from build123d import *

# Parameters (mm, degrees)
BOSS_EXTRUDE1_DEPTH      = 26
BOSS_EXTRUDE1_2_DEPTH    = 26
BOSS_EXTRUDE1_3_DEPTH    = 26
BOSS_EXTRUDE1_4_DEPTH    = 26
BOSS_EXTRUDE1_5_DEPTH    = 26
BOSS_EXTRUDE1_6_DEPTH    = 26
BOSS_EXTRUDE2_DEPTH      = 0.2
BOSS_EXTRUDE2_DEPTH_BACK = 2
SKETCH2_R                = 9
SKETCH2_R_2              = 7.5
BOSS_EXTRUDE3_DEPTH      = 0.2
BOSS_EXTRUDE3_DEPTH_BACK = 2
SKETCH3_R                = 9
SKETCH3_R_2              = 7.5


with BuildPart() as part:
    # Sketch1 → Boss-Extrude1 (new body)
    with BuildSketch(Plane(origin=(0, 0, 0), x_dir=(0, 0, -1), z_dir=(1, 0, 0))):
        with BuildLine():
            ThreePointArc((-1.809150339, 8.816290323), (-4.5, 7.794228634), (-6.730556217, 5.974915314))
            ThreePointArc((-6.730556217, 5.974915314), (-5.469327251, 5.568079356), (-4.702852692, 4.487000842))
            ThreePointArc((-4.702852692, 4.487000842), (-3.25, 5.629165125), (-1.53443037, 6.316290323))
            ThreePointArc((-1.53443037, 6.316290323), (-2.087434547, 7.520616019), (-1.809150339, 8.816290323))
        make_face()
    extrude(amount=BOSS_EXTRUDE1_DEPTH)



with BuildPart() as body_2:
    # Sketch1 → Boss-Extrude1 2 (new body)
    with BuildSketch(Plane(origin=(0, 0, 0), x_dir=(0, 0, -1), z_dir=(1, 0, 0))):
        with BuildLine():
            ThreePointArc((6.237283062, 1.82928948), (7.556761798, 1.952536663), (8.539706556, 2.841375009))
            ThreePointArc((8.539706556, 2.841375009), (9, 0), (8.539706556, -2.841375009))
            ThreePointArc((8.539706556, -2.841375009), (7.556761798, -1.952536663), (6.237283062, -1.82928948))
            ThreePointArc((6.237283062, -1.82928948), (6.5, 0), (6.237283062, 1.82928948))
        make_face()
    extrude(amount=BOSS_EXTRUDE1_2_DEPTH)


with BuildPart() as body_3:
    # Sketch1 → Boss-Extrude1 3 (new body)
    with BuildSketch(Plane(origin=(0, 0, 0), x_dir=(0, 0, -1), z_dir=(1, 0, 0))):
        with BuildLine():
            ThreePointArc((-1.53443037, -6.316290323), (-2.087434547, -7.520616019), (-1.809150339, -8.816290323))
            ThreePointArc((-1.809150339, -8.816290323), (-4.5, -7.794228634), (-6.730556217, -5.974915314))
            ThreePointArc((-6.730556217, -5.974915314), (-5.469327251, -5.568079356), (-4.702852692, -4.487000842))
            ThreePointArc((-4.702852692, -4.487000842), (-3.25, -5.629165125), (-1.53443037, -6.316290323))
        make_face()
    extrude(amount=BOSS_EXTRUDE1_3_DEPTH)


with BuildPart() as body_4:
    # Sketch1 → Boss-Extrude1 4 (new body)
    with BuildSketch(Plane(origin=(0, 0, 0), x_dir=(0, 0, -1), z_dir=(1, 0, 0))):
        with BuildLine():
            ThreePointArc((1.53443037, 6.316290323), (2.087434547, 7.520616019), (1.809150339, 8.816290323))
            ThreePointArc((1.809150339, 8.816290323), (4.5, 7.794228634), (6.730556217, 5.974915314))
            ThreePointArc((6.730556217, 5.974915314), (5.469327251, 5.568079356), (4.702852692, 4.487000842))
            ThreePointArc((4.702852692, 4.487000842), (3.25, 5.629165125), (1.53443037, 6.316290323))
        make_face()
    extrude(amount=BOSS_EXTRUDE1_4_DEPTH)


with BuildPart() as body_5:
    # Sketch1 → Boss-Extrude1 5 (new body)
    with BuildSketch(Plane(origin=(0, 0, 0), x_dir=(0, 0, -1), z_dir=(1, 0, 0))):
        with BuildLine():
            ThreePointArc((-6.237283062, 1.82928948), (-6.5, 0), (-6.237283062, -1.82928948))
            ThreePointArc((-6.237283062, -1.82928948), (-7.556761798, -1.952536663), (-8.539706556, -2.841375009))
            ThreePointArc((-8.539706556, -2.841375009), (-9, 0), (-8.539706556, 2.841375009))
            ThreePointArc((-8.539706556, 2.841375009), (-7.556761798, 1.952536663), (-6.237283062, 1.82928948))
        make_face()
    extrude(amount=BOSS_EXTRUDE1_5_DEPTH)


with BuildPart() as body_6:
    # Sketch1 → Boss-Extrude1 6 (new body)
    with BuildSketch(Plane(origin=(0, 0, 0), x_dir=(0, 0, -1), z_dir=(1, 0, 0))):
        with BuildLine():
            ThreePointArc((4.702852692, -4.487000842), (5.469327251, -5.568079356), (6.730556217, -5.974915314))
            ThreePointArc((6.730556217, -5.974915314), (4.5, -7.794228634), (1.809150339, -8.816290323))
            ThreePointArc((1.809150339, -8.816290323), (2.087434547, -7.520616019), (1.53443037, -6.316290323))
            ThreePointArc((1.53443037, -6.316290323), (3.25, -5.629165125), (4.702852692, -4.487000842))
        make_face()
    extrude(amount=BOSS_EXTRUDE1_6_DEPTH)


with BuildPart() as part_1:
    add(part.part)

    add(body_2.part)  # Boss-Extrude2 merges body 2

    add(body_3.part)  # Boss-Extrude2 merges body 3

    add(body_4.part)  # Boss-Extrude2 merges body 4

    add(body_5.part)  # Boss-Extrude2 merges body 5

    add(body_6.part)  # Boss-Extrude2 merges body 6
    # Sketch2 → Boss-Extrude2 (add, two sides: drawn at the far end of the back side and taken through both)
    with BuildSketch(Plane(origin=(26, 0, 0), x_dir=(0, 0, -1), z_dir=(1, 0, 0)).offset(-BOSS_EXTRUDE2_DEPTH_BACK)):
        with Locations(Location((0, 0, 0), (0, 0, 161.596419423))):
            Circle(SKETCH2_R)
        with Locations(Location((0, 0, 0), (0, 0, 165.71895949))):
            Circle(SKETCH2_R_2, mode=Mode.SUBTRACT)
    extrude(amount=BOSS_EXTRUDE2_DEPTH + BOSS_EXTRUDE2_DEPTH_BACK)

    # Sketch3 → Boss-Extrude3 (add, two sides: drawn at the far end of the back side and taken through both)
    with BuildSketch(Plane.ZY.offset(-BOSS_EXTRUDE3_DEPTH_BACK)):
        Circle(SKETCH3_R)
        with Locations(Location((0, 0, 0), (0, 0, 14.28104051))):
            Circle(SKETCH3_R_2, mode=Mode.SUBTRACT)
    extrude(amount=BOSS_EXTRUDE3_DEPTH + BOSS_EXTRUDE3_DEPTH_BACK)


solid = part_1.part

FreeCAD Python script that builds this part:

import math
import FreeCAD as App
import Part
import Sketcher
from FreeCAD import Vector

doc = App.newDocument("Part")
body = doc.addObject("PartDesign::Body", "Body")

# Sketch on YZ plane
sketch1 = doc.addObject("Sketcher::SketchObject", "Sketch")
body.addObject(sketch1)
sketch1.AttachmentSupport = (doc.YZ_Plane, [""])
sketch1.MapMode = "FlatFace"
sketch1.addGeometry([
    Part.ArcOfCircle(Part.Circle(Vector(0, 0, 0), Vector(0, 0, 1), 9), math.radians(11.596419), math.radians(48.403581)),
    Part.ArcOfCircle(Part.Circle(Vector(3.875, 6.711697, 0), Vector(0, 0, 1), 2.1), math.radians(-73.056474), math.radians(0.514559)),
    Part.ArcOfCircle(Part.Circle(Vector(0, 0, 0), Vector(0, 0, 1), 6.5), math.radians(13.654481), math.radians(46.345519)),
    Part.ArcOfCircle(Part.Circle(Vector(7.75, 0, 0), Vector(0, 0, 1), 2.1), math.radians(59.485441), math.radians(133.056474)),
], False)
sketch1.addConstraint([
    Sketcher.Constraint("Coincident", 0, 2, 1, 2),
    Sketcher.Constraint("Coincident", 1, 1, 2, 2),
    Sketcher.Constraint("Coincident", 2, 1, 3, 2),
    Sketcher.Constraint("Coincident", 3, 1, 0, 1),
    Sketcher.Constraint("Coincident", 0, 3, -1, 1),
    Sketcher.Constraint("Coincident", 2, 3, -1, 1),
    Sketcher.Constraint("Equal", 1, 3),
    Sketcher.Constraint("PointOnObject", 3, 3, -1),
    Sketcher.Constraint("Radius", 0, 9.0),
    Sketcher.Constraint("Radius", 1, 2.1),
    Sketcher.Constraint("Radius", 2, 6.5),
    Sketcher.Constraint("DistanceX", 2, 1, 3, 1, 2.5),
    Sketcher.Constraint("DistanceX", -1, 1, 1, 3, 3.875),
    Sketcher.Constraint("DistanceX", -1, 1, 1, 1, 4.487001),
])
pad1 = doc.addObject("PartDesign::Pad", "Pad")
body.addObject(pad1)
pad1.Profile = sketch1
pad1.Length = 26
body2 = doc.addObject("PartDesign::Body", "Body001")

# Sketch on YZ plane
sketch2 = doc.addObject("Sketcher::SketchObject", "Sketch001")
body2.addObject(sketch2)
sketch2.AttachmentSupport = (doc.getObject("YZ_Plane001"), [""])
sketch2.MapMode = "FlatFace"
sketch2.addGeometry([
    Part.ArcOfCircle(Part.Circle(Vector(3.875, -6.711697, 0), Vector(0, 0, 1), 2.1), math.radians(166.943526), math.radians(240.514559)),
    Part.ArcOfCircle(Part.Circle(Vector(0, 0, 0), Vector(0, 0, 1), 6.5), math.radians(-106.345519), math.radians(-73.654481)),
    Part.ArcOfCircle(Part.Circle(Vector(-3.875, -6.711697, 0), Vector(0, 0, 1), 2.1), math.radians(-60.514559), math.radians(13.056474)),
    Part.ArcOfCircle(Part.Circle(Vector(0, 0, 0), Vector(0, 0, 1), 9), math.radians(-108.403581), math.radians(-71.596419)),
], False)
sketch2.addConstraint([
    Sketcher.Constraint("Coincident", 0, 1, 1, 2),
    Sketcher.Constraint("Coincident", 1, 1, 2, 2),
    Sketcher.Constraint("Coincident", 2, 1, 3, 1),
    Sketcher.Constraint("Coincident", 3, 2, 0, 2),
    Sketcher.Constraint("Coincident", 1, 3, -1, 1),
    Sketcher.Constraint("Coincident", 3, 3, -1, 1),
    Sketcher.Constraint("Equal", 0, 2),
    Sketcher.Constraint("Symmetric", 0, 3, 2, 3, -2),
    Sketcher.Constraint("Radius", 3, 9.0),
    Sketcher.Constraint("Radius", 0, 2.1),
    Sketcher.Constraint("Radius", 1, 6.5),
    Sketcher.Constraint("DistanceX", 2, 3, 0, 3, 7.75),
    Sketcher.Constraint("DistanceX", -1, 1, 0, 1, 1.829289),
])
pad2 = doc.addObject("PartDesign::Pad", "Pad001")
body2.addObject(pad2)
pad2.Profile = sketch2
pad2.Length = 26
body3 = doc.addObject("PartDesign::Body", "Body002")

# Sketch on YZ plane
sketch3 = doc.addObject("Sketcher::SketchObject", "Sketch002")
body3.addObject(sketch3)
sketch3.AttachmentSupport = (doc.getObject("YZ_Plane002"), [""])
sketch3.MapMode = "FlatFace"
sketch3.addGeometry([
    Part.ArcOfCircle(Part.Circle(Vector(-7.75, 0, 0), Vector(0, 0, 1), 2.1), math.radians(46.943526), math.radians(120.514559)),
    Part.ArcOfCircle(Part.Circle(Vector(0, 0, 0), Vector(0, 0, 1), 6.5), math.radians(133.654481), math.radians(166.345519)),
    Part.ArcOfCircle(Part.Circle(Vector(-3.875, 6.711697, 0), Vector(0, 0, 1), 2.1), math.radians(179.485441), math.radians(253.056474)),
    Part.ArcOfCircle(Part.Circle(Vector(0, 0, 0), Vector(0, 0, 1), 9), math.radians(131.596419), math.radians(168.403581)),
], False)
sketch3.addConstraint([
    Sketcher.Constraint("Coincident", 0, 1, 1, 2),
    Sketcher.Constraint("Coincident", 1, 1, 2, 2),
    Sketcher.Constraint("Coincident", 2, 1, 3, 1),
    Sketcher.Constraint("Coincident", 3, 2, 0, 2),
    Sketcher.Constraint("Coincident", 1, 3, -1, 1),
    Sketcher.Constraint("Coincident", 3, 3, -1, 1),
    Sketcher.Constraint("Equal", 0, 2),
    Sketcher.Constraint("PointOnObject", 0, 3, -1),
    Sketcher.Constraint("Radius", 3, 9.0),
    Sketcher.Constraint("Radius", 0, 2.1),
    Sketcher.Constraint("Radius", 1, 6.5),
    Sketcher.Constraint("DistanceX", 3, 2, 0, 1, 2.5),
    Sketcher.Constraint("DistanceX", 2, 3, -1, 1, 3.875),
    Sketcher.Constraint("DistanceX", 1, 1, -1, 1, 4.487001),
])
pad3 = doc.addObject("PartDesign::Pad", "Pad002")
body3.addObject(pad3)
pad3.Profile = sketch3
pad3.Length = 26
body4 = doc.addObject("PartDesign::Body", "Body003")

# Sketch on YZ plane
sketch4 = doc.addObject("Sketcher::SketchObject", "Sketch003")
body4.addObject(sketch4)
sketch4.AttachmentSupport = (doc.getObject("YZ_Plane003"), [""])
sketch4.MapMode = "FlatFace"
sketch4.addGeometry([
    Part.ArcOfCircle(Part.Circle(Vector(7.75, 0, 0), Vector(0, 0, 1), 2.1), math.radians(-133.056474), math.radians(-59.485441)),
    Part.ArcOfCircle(Part.Circle(Vector(0, 0, 0), Vector(0, 0, 1), 6.5), math.radians(-46.345519), math.radians(-13.654481)),
    Part.ArcOfCircle(Part.Circle(Vector(3.875, -6.711697, 0), Vector(0, 0, 1), 2.1), math.radians(-0.514559), math.radians(73.056474)),
    Part.ArcOfCircle(Part.Circle(Vector(0, 0, 0), Vector(0, 0, 1), 9), math.radians(-48.403581), math.radians(-11.596419)),
], False)
sketch4.addConstraint([
    Sketcher.Constraint("Coincident", 0, 1, 1, 2),
    Sketcher.Constraint("Coincident", 1, 1, 2, 2),
    Sketcher.Constraint("Coincident", 2, 1, 3, 1),
    Sketcher.Constraint("Coincident", 3, 2, 0, 2),
    Sketcher.Constraint("Coincident", 1, 3, -1, 1),
    Sketcher.Constraint("Coincident", 3, 3, -1, 1),
    Sketcher.Constraint("Equal", 0, 2),
    Sketcher.Constraint("PointOnObject", 0, 3, -1),
    Sketcher.Constraint("Radius", 3, 9.0),
    Sketcher.Constraint("Radius", 0, 2.1),
    Sketcher.Constraint("Radius", 1, 6.5),
    Sketcher.Constraint("DistanceX", 0, 1, 3, 2, 2.5),
    Sketcher.Constraint("DistanceX", -1, 1, 2, 3, 3.875),
    Sketcher.Constraint("DistanceX", -1, 1, 1, 1, 4.487001),
])
pad4 = doc.addObject("PartDesign::Pad", "Pad003")
body4.addObject(pad4)
pad4.Profile = sketch4
pad4.Length = 26
body5 = doc.addObject("PartDesign::Body", "Body004")

# Sketch on YZ plane
sketch5 = doc.addObject("Sketcher::SketchObject", "Sketch004")
body5.addObject(sketch5)
sketch5.AttachmentSupport = (doc.getObject("YZ_Plane004"), [""])
sketch5.MapMode = "FlatFace"
sketch5.addGeometry([
    Part.ArcOfCircle(Part.Circle(Vector(0, 0, 0), Vector(0, 0, 1), 6.5), math.radians(73.654481), math.radians(106.345519)),
    Part.ArcOfCircle(Part.Circle(Vector(3.875, 6.711697, 0), Vector(0, 0, 1), 2.1), math.radians(119.485441), math.radians(193.056474)),
    Part.ArcOfCircle(Part.Circle(Vector(0, 0, 0), Vector(0, 0, 1), 9), math.radians(71.596419), math.radians(108.403581)),
    Part.ArcOfCircle(Part.Circle(Vector(-3.875, 6.711697, 0), Vector(0, 0, 1), 2.1), math.radians(-13.056474), math.radians(60.514559)),
], False)
sketch5.addConstraint([
    Sketcher.Constraint("Coincident", 0, 1, 1, 2),
    Sketcher.Constraint("Coincident", 1, 1, 2, 1),
    Sketcher.Constraint("Coincident", 2, 2, 3, 2),
    Sketcher.Constraint("Coincident", 3, 1, 0, 2),
    Sketcher.Constraint("Coincident", 0, 3, -1, 1),
    Sketcher.Constraint("Coincident", 2, 3, -1, 1),
    Sketcher.Constraint("Equal", 1, 3),
    Sketcher.Constraint("Symmetric", 1, 3, 3, 3, -2),
    Sketcher.Constraint("Radius", 2, 9.0),
    Sketcher.Constraint("Radius", 0, 6.5),
    Sketcher.Constraint("Radius", 1, 2.1),
    Sketcher.Constraint("DistanceX", 3, 3, 1, 3, 7.75),
    Sketcher.Constraint("DistanceX", -1, 1, 0, 1, 1.829289),
])
pad5 = doc.addObject("PartDesign::Pad", "Pad004")
body5.addObject(pad5)
pad5.Profile = sketch5
pad5.Length = 26
body6 = doc.addObject("PartDesign::Body", "Body005")

# Sketch on YZ plane
sketch6 = doc.addObject("Sketcher::SketchObject", "Sketch005")
body6.addObject(sketch6)
sketch6.AttachmentSupport = (doc.getObject("YZ_Plane005"), [""])
sketch6.MapMode = "FlatFace"
sketch6.addGeometry([
    Part.ArcOfCircle(Part.Circle(Vector(-3.875, -6.711697, 0), Vector(0, 0, 1), 2.1), math.radians(106.943526), math.radians(180.514559)),
    Part.ArcOfCircle(Part.Circle(Vector(0, 0, 0), Vector(0, 0, 1), 6.5), math.radians(-166.345519), math.radians(-133.654481)),
    Part.ArcOfCircle(Part.Circle(Vector(-7.75, 0, 0), Vector(0, 0, 1), 2.1), math.radians(-120.514559), math.radians(-46.943526)),
    Part.ArcOfCircle(Part.Circle(Vector(0, 0, 0), Vector(0, 0, 1), 9), math.radians(-168.403581), math.radians(-131.596419)),
], False)
sketch6.addConstraint([
    Sketcher.Constraint("Coincident", 0, 1, 1, 2),
    Sketcher.Constraint("Coincident", 1, 1, 2, 2),
    Sketcher.Constraint("Coincident", 2, 1, 3, 1),
    Sketcher.Constraint("Coincident", 3, 2, 0, 2),
    Sketcher.Constraint("Coincident", 1, 3, -1, 1),
    Sketcher.Constraint("Coincident", 3, 3, -1, 1),
    Sketcher.Constraint("Equal", 0, 2),
    Sketcher.Constraint("PointOnObject", 2, 3, -1),
    Sketcher.Constraint("Radius", 3, 9.0),
    Sketcher.Constraint("Radius", 0, 2.1),
    Sketcher.Constraint("Radius", 1, 6.5),
    Sketcher.Constraint("DistanceX", 2, 1, 1, 1, 2.5),
    Sketcher.Constraint("DistanceX", 0, 3, -1, 1, 3.875),
    Sketcher.Constraint("DistanceX", 0, 1, -1, 1, 4.487001),
])
pad6 = doc.addObject("PartDesign::Pad", "Pad005")
body6.addObject(pad6)
pad6.Profile = sketch6
pad6.Length = 26
body.AllowCompound = True
doc.recompute()

boolean = doc.addObject("PartDesign::Boolean", "Boolean")
body.addObject(boolean)
boolean.Type = "Fuse"
boolean.addObjects([body2])
doc.recompute()

boolean2 = doc.addObject("PartDesign::Boolean", "Boolean001")
body.addObject(boolean2)
boolean2.Type = "Fuse"
boolean2.addObjects([body3])
doc.recompute()

boolean3 = doc.addObject("PartDesign::Boolean", "Boolean002")
body.addObject(boolean3)
boolean3.Type = "Fuse"
boolean3.addObjects([body4])
doc.recompute()

boolean4 = doc.addObject("PartDesign::Boolean", "Boolean003")
body.addObject(boolean4)
boolean4.Type = "Fuse"
boolean4.addObjects([body5])
doc.recompute()

boolean5 = doc.addObject("PartDesign::Boolean", "Boolean004")
body.addObject(boolean5)
boolean5.Type = "Fuse"
boolean5.addObjects([body6])

# Sketch on YZ plane
sketch7 = doc.addObject("Sketcher::SketchObject", "Sketch006")
body.addObject(sketch7)
sketch7.AttachmentSupport = (doc.YZ_Plane, [""])
sketch7.MapMode = "FlatFace"
sketch7.AttachmentOffset = App.Placement(Vector(0, 0, 26), App.Rotation())
sketch7.addGeometry([
    Part.Circle(Vector(0, 0, 0), Vector(0, 0, 1), 9),
    Part.Circle(Vector(0, 0, 0), Vector(0, 0, 1), 7.5),
], False)
sketch7.addConstraint([
    Sketcher.Constraint("Coincident", 0, 3, -1, 1),
    Sketcher.Constraint("Coincident", 1, 3, -1, 1),
    Sketcher.Constraint("Diameter", 0, 18.0),
    Sketcher.Constraint("Diameter", 1, 15.0),
])
pad7 = doc.addObject("PartDesign::Pad", "Pad006")
body.addObject(pad7)
pad7.Profile = sketch7
pad7.Type = "TwoLengths"
pad7.Length = 0.2
pad7.Length2 = 2

# Sketch on YZ plane
sketch8 = doc.addObject("Sketcher::SketchObject", "Sketch007")
body.addObject(sketch8)
sketch8.AttachmentSupport = (doc.YZ_Plane, [""])
sketch8.MapMode = "FlatFace"
sketch8.addGeometry([
    Part.Circle(Vector(0, 0, 0), Vector(0, 0, 1), 9),
    Part.Circle(Vector(0, 0, 0), Vector(0, 0, 1), 7.5),
], False)
sketch8.addConstraint([
    Sketcher.Constraint("Coincident", 0, 3, -1, 1),
    Sketcher.Constraint("Coincident", 1, 3, -1, 1),
    Sketcher.Constraint("Diameter", 0, 18.0),
    Sketcher.Constraint("Diameter", 1, 15.0),
])
pad8 = doc.addObject("PartDesign::Pad", "Pad007")
body.addObject(pad8)
pad8.Profile = sketch8
pad8.Type = "TwoLengths"
pad8.Length = 0.2
pad8.Length2 = 2
pad8.Reversed = True

doc.recompute()
